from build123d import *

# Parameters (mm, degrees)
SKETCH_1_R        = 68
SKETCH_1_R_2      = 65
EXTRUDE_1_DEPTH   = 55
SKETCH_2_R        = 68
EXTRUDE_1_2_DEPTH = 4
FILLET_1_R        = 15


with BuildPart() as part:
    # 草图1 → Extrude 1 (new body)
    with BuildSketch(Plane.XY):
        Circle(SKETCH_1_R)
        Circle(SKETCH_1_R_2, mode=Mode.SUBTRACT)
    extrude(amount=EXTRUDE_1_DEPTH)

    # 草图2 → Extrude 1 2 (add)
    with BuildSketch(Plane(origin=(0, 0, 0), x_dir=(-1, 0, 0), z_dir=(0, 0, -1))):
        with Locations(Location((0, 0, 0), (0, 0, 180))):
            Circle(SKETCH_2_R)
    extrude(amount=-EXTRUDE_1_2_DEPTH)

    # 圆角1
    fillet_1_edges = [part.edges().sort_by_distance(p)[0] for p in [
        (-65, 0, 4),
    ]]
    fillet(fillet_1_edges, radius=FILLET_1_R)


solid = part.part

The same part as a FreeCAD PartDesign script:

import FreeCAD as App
import Part
import Sketcher
from FreeCAD import Vector


def edges_at(feature, points):
    """Names of the edges that pass closest to the given points."""
    edges = feature.Shape.Edges
    near = lambda p: min(range(len(edges)), key=lambda i: edges[i].distToShape(Part.Vertex(*p))[0])
    return sorted({f"Edge{near(p) + 1}" for p in points})

doc = App.newDocument("Part")
params = doc.addObject("Spreadsheet::Sheet", "Params")
for row, (alias, value) in enumerate([
    ("sketch1_diameter", "136 mm"),
    ("sketch1_diameter2", "130 mm"),
    ("pad1_length", "55 mm"),
    ("sketch2_diameter", "136 mm"),
    ("pad2_length", "4 mm"),
    ("fillet_radius", "15 mm"),
], start=1):
    params.set(f"A{row}", alias)
    params.set(f"B{row}", "=" + value)
    params.setAlias(f"B{row}", alias)

body = doc.addObject("PartDesign::Body", "Body")

# Sketch on XY plane
sketch1 = body.newObject("Sketcher::SketchObject", "Sketch")
sketch1.AttachmentSupport = (doc.getObject("XY_Plane"), [""])
sketch1.MapMode = "FlatFace"
sketch1.addGeometry([
    Part.Circle(Vector(0, 0, 0), Vector(0, 0, 1), 68),
    Part.Circle(Vector(0, 0, 0), Vector(0, 0, 1), 65),
], False)
sketch1.addConstraint([
    Sketcher.Constraint("Coincident", 0, 3, -1, 1),
    Sketcher.Constraint("Coincident", 1, 3, -1, 1),
    Sketcher.Constraint("Diameter", 0, 136.0),
    Sketcher.Constraint("Diameter", 1, 130.0),
])
sketch1.setExpression("Constraints[2]", "Params.sketch1_diameter")
sketch1.setExpression("Constraints[3]", "Params.sketch1_diameter2")
pad1 = body.newObject("PartDesign::Pad", "Pad")
pad1.Profile = sketch1
pad1.setExpression("Length", "Params.pad1_length")

# Sketch on XY plane
sketch2 = body.newObject("Sketcher::SketchObject", "Sketch001")
sketch2.AttachmentSupport = (doc.getObject("XY_Plane"), [""])
sketch2.MapMode = "FlatFace"
sketch2.addGeometry(Part.Circle(Vector(0, 0, 0), Vector(0, 0, 1), 68), False)
sketch2.addConstraint([
    Sketcher.Constraint("Coincident", 0, 3, -1, 1),
    Sketcher.Constraint("Diameter", 0, 136.0),
])
sketch2.setExpression("Constraints[1]", "Params.sketch2_diameter")
pad2 = body.newObject("PartDesign::Pad", "Pad001")
pad2.Profile = sketch2
pad2.setExpression("Length", "Params.pad2_length")
doc.recompute()

fillet = body.newObject("PartDesign::Fillet", "Fillet")
fillet.Base = (pad2, edges_at(pad2, [(-65, 0, 4)]))
fillet.setExpression("Radius", "Params.fillet_radius")

doc.recompute()
